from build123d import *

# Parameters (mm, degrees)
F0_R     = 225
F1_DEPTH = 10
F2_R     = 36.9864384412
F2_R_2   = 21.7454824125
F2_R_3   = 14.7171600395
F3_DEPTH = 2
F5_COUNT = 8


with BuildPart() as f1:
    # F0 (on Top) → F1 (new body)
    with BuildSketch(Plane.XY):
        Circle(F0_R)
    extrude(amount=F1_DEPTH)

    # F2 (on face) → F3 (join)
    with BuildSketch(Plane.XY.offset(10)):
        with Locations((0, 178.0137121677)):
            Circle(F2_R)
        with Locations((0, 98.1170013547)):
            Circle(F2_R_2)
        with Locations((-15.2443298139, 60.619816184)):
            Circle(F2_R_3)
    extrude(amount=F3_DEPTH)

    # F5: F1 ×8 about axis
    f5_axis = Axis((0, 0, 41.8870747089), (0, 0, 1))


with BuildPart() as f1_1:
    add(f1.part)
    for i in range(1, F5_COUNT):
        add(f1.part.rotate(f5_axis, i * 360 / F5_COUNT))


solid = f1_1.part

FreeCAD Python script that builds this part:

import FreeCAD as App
import Part
import Sketcher
Q = App.Units.Quantity

doc = App.newDocument("Part")
body = doc.addObject("PartDesign::Body", "Body")

sketch1 = body.newObject("Sketcher::SketchObject", "Sketch")
sketch1.AttachmentSupport = (doc.getObject("XY_Plane"), [""])
sketch1.MapMode = "FlatFace"
sketch1.addGeometry(Part.Circle(App.Vector(0, 0, 0), App.Vector(0, 0, 1), 225), False)
sketch1.addConstraint([
    Sketcher.Constraint("Coincident", 0, 3, -1, 1),
    Sketcher.Constraint("Diameter", 0, Q("450 mm")),
])
pad1 = body.newObject("PartDesign::Pad", "Pad")
pad1.Profile = sketch1
pad1.Length = 10

sketch2 = body.newObject("Sketcher::SketchObject", "Sketch001")
sketch2.AttachmentSupport = (doc.getObject("XY_Plane"), [""])
sketch2.MapMode = "FlatFace"
sketch2.AttachmentOffset = App.Placement(App.Vector(0, 0, 10), App.Rotation())
sketch2.addGeometry([
    Part.Circle(App.Vector(0, 178, 0), App.Vector(0, 0, 1), 37),
    Part.Circle(App.Vector(0, 98, 0), App.Vector(0, 0, 1), 22),
    Part.Circle(App.Vector(-15, 61, 0), App.Vector(0, 0, 1), 15),
], False)
sketch2.addConstraint([
    Sketcher.Constraint("PointOnObject", 0, 3, -2),
    Sketcher.Constraint("PointOnObject", 1, 3, -2),
    Sketcher.Constraint("Diameter", 2, Q("29.43432 mm")),
    Sketcher.Constraint("Diameter", 0, Q("73.972877 mm")),
    Sketcher.Constraint("Diameter", 1, Q("43.490965 mm")),
    Sketcher.Constraint("DistanceY", -1, 1, 1, 3, Q("98.117001 mm")),
    Sketcher.Constraint("DistanceX", 2, 3, -1, 1, Q("15.24433 mm")),
    Sketcher.Constraint("DistanceY", 1, 3, 0, 3, Q("79.896711 mm")),
    Sketcher.Constraint("DistanceY", -1, 1, 2, 3, Q("60.619816 mm")),
])
pad2 = body.newObject("PartDesign::Pad", "Pad001")
pad2.Profile = sketch2
pad2.Length = 2
body2 = doc.addObject("PartDesign::Body", "Body001")
doc.recompute()

body2.BaseFeature = body
doc.recompute()

body3 = doc.addObject("PartDesign::Body", "Body002")
body3.BaseFeature = body
body3.Placement = App.Placement(App.Vector(0, 0, 0), App.Rotation(App.Vector(0, 0, 1), 45))
boolean = body2.newObject("PartDesign::Boolean", "Boolean")
boolean.Type = "Fuse"
boolean.addObjects([body3])
doc.recompute()

body4 = doc.addObject("PartDesign::Body", "Body003")
body4.BaseFeature = body
body4.Placement = App.Placement(App.Vector(0, 0, 0), App.Rotation(App.Vector(0, 0, 1), 90))
boolean2 = body2.newObject("PartDesign::Boolean", "Boolean001")
boolean2.Type = "Fuse"
boolean2.addObjects([body4])
doc.recompute()

body5 = doc.addObject("PartDesign::Body", "Body004")
body5.BaseFeature = body
body5.Placement = App.Placement(App.Vector(0, 0, 0), App.Rotation(App.Vector(0, 0, 1), 135))
boolean3 = body2.newObject("PartDesign::Boolean", "Boolean002")
boolean3.Type = "Fuse"
boolean3.addObjects([body5])
doc.recompute()

body6 = doc.addObject("PartDesign::Body", "Body005")
body6.BaseFeature = body
body6.Placement = App.Placement(App.Vector(0, 0, 0), App.Rotation(App.Vector(0, 0, 1), 180))
boolean4 = body2.newObject("PartDesign::Boolean", "Boolean003")
boolean4.Type = "Fuse"
boolean4.addObjects([body6])
doc.recompute()

body7 = doc.addObject("PartDesign::Body", "Body006")
body7.BaseFeature = body
body7.Placement = App.Placement(App.Vector(0, 0, 0), App.Rotation(App.Vector(0, 0, 1), 225))
boolean5 = body2.newObject("PartDesign::Boolean", "Boolean004")
boolean5.Type = "Fuse"
boolean5.addObjects([body7])
doc.recompute()

body8 = doc.addObject("PartDesign::Body", "Body007")
body8.BaseFeature = body
body8.Placement = App.Placement(App.Vector(0, 0, 0), App.Rotation(App.Vector(0, 0, 1), 270))
boolean6 = body2.newObject("PartDesign::Boolean", "Boolean005")
boolean6.Type = "Fuse"
boolean6.addObjects([body8])
doc.recompute()

body.Placement = App.Placement(App.Vector(0, 0, 0), App.Rotation(App.Vector(0, 0, 1), 315))
boolean7 = body2.newObject("PartDesign::Boolean", "Boolean006")
boolean7.Type = "Fuse"
boolean7.addObjects([body])

doc.recompute()
